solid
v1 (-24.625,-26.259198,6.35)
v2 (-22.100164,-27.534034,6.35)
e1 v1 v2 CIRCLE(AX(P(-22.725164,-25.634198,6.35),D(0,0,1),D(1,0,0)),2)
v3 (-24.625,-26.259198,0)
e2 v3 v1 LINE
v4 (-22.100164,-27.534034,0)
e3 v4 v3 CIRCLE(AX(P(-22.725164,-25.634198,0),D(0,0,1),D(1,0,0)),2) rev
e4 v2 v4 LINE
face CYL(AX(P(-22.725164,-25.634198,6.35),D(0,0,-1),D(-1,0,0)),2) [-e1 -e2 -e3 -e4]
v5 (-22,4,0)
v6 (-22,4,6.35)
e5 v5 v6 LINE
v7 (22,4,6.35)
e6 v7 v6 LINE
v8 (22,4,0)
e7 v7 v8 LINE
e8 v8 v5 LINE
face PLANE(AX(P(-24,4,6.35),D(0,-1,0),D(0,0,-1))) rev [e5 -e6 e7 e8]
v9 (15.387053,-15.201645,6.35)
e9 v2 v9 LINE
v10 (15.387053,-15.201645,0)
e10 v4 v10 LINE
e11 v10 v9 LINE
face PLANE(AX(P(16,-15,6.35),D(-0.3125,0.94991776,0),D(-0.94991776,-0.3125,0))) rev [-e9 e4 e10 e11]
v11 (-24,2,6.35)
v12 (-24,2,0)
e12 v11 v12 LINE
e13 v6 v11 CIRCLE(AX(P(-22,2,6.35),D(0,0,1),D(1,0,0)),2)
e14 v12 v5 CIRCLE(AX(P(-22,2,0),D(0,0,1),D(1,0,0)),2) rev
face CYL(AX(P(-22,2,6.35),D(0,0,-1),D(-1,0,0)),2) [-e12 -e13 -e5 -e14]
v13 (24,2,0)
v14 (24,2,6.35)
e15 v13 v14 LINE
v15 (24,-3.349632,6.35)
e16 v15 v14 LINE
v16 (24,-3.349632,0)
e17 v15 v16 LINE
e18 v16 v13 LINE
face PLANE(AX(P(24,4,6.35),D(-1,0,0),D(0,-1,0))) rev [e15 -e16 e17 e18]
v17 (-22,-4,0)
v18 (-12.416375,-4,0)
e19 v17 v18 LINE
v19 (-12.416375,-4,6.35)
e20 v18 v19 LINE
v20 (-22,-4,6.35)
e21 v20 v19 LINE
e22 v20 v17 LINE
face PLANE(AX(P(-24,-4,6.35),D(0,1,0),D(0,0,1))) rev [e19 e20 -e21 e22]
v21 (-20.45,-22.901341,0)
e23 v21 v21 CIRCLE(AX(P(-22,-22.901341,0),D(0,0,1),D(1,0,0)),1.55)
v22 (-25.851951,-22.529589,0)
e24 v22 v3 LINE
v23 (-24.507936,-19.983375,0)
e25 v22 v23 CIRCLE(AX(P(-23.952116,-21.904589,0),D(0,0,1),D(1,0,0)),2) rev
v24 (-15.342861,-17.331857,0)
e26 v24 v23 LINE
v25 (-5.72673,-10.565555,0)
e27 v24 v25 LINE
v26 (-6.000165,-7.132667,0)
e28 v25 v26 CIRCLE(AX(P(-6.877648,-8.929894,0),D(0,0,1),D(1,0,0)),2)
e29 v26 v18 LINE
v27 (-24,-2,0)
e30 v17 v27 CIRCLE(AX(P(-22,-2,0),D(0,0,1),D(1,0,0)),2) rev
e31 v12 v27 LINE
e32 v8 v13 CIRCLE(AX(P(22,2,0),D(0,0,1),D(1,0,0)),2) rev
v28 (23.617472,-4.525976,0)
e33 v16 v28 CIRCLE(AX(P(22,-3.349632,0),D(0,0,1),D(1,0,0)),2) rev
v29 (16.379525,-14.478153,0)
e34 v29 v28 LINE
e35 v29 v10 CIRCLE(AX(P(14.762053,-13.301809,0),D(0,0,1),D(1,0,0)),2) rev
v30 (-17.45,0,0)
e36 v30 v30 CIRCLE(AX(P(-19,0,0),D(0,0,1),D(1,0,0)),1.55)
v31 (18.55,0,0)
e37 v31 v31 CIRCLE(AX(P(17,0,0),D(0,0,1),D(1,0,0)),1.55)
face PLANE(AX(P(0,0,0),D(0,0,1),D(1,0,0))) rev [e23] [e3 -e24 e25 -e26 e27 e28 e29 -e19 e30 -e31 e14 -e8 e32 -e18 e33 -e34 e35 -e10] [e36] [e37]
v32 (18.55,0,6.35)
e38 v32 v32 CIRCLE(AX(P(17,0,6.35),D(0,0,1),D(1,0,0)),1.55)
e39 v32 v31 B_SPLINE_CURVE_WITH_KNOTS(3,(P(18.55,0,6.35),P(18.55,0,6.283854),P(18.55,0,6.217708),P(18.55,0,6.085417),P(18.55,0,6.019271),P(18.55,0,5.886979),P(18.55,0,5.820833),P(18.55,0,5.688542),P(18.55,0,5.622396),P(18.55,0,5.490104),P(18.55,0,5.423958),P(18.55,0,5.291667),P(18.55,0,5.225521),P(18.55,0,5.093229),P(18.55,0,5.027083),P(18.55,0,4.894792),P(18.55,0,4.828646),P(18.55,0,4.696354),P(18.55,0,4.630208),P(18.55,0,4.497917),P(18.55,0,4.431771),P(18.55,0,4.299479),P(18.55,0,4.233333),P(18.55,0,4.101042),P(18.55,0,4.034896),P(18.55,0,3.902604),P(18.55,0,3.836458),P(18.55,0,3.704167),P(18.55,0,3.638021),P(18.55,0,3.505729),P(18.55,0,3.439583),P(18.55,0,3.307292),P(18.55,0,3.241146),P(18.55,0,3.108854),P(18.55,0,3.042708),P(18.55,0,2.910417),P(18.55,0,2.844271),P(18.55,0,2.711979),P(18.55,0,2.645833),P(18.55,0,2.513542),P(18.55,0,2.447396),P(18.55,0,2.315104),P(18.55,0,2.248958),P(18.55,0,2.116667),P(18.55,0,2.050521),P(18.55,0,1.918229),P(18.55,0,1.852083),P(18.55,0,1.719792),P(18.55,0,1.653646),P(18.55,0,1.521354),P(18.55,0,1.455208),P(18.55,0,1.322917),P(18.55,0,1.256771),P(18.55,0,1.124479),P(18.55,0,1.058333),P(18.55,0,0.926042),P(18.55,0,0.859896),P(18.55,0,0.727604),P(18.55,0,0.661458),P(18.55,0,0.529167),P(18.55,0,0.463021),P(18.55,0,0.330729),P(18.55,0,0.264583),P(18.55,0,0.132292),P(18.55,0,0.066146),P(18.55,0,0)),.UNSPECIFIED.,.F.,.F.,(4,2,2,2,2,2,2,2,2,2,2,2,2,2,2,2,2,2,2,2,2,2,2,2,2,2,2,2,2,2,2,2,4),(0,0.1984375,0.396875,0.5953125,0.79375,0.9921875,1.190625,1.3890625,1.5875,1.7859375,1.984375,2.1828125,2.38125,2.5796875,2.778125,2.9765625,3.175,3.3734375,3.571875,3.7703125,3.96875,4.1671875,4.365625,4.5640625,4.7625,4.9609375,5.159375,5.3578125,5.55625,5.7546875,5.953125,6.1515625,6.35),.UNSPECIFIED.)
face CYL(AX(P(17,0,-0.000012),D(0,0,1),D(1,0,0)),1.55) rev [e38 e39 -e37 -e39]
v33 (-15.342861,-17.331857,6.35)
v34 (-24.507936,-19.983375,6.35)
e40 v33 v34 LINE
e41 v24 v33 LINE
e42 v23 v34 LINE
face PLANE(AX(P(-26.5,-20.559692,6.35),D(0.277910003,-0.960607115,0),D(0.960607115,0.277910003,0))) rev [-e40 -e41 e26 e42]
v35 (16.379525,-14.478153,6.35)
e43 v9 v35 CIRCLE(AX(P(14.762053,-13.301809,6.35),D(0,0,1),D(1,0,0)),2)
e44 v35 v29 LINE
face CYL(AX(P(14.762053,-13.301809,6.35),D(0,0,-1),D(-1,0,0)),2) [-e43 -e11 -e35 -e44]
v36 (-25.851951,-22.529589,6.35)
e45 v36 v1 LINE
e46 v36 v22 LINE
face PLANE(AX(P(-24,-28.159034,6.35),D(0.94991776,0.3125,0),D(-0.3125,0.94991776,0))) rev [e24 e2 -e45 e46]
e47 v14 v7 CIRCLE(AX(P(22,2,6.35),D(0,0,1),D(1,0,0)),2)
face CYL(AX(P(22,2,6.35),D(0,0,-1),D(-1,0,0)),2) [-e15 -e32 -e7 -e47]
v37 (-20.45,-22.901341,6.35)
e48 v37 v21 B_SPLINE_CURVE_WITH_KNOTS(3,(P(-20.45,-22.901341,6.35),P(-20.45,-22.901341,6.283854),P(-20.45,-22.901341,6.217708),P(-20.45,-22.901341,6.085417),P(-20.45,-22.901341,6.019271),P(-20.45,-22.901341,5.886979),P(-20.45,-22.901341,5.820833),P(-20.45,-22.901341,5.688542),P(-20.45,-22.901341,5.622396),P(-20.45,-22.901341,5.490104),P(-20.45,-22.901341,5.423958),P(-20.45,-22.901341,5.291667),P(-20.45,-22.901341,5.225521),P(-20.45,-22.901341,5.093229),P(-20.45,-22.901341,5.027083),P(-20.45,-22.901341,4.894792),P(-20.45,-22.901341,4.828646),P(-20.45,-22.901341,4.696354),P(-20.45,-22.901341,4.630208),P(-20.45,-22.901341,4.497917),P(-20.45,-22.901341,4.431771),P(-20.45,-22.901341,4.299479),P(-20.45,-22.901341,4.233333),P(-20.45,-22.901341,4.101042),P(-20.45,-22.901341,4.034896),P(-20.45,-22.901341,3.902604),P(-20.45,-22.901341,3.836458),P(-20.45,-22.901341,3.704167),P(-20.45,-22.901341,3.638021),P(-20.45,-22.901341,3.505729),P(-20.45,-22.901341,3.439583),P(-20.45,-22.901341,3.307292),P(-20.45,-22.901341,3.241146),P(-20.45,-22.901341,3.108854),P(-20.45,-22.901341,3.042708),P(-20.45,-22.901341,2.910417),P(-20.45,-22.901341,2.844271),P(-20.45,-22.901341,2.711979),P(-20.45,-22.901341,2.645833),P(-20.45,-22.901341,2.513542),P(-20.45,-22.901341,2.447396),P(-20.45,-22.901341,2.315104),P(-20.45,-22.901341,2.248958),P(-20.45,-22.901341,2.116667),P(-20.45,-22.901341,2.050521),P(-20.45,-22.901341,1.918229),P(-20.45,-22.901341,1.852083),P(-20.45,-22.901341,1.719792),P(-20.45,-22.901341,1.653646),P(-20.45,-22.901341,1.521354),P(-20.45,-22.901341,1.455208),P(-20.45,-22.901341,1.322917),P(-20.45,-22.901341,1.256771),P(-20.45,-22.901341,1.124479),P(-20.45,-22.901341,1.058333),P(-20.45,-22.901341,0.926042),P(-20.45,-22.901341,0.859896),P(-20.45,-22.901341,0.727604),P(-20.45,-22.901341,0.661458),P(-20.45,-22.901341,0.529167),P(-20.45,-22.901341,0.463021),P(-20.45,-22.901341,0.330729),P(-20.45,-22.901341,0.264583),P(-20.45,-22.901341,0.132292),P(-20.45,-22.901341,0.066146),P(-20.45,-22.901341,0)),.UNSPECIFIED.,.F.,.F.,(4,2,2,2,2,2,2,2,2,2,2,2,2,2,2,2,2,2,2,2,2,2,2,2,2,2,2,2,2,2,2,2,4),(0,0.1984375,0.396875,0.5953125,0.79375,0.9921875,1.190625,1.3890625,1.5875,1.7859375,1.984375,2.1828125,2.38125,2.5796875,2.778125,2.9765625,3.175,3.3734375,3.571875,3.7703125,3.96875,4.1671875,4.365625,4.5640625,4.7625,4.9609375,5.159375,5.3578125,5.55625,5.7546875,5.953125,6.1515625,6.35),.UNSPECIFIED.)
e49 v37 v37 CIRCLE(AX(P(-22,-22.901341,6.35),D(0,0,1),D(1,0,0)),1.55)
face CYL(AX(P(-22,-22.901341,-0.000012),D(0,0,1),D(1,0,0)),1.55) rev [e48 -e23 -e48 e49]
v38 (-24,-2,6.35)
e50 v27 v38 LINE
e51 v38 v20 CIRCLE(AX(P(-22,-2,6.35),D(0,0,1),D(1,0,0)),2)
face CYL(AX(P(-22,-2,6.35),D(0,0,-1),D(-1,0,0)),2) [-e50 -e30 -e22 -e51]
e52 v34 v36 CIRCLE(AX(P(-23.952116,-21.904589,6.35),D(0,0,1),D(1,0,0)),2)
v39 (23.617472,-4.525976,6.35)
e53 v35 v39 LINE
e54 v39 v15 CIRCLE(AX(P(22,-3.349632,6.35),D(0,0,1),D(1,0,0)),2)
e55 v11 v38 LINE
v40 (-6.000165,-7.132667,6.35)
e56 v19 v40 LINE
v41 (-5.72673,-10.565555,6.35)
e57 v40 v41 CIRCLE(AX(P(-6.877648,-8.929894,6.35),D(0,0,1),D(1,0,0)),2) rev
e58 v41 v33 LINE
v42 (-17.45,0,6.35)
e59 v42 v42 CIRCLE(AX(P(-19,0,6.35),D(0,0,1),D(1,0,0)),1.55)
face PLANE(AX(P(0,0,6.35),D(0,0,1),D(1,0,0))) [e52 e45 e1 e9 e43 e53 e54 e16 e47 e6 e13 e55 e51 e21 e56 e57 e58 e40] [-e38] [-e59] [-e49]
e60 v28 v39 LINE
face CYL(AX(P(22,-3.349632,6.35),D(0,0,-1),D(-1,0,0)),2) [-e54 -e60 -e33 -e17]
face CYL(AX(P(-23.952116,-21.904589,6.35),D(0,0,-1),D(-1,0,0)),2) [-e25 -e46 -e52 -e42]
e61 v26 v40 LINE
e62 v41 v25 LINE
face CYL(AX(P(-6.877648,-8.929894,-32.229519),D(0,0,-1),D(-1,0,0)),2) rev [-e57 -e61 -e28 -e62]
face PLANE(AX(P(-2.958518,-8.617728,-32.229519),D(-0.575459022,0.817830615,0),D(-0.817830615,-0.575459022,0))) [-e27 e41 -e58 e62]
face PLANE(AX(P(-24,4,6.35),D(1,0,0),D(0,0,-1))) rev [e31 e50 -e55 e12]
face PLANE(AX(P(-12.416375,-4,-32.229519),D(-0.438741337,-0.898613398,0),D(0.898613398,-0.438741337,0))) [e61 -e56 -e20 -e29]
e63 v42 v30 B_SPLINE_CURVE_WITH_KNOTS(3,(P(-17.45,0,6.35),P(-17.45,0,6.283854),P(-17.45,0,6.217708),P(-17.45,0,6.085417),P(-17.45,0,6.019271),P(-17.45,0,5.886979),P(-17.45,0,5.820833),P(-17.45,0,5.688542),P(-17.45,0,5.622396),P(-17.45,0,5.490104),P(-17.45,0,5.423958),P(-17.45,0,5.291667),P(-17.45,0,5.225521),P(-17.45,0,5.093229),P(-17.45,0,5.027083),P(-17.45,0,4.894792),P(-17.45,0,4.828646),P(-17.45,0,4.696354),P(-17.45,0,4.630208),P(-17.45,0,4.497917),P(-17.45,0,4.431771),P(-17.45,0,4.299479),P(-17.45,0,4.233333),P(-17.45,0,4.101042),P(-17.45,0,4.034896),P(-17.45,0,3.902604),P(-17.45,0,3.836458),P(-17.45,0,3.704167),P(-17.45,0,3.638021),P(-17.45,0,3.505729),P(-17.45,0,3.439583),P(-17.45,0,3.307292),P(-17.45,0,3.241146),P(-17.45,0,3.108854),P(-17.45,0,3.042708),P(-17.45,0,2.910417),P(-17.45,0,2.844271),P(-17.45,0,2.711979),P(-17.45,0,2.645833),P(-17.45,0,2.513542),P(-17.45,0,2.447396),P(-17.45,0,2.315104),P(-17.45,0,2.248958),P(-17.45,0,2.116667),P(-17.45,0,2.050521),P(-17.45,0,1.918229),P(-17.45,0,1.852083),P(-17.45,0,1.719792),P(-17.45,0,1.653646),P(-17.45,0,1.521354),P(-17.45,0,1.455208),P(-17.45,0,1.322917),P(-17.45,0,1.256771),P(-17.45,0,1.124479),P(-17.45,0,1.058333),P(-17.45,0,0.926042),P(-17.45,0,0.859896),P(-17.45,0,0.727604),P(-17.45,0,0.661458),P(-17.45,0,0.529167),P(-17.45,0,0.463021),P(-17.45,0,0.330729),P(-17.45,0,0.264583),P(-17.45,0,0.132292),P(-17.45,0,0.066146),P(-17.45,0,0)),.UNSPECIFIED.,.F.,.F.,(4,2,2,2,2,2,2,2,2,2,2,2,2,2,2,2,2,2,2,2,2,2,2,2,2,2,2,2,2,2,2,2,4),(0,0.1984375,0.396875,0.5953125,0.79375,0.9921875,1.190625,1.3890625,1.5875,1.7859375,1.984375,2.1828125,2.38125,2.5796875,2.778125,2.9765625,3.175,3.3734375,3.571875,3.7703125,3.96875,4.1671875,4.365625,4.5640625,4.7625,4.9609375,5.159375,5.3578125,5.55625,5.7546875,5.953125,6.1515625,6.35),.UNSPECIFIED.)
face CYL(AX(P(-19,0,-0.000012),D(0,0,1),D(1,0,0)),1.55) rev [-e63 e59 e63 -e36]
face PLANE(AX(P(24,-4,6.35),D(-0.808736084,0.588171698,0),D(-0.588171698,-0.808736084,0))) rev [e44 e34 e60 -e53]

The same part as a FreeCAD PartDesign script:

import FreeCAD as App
import Part
import Sketcher


def edges_at(feature, points):
    """Names of the edges that pass closest to the given points."""
    edges = feature.Shape.Edges
    near = lambda p: min(range(len(edges)), key=lambda i: edges[i].distToShape(Part.Vertex(*p))[0])
    return sorted({f"Edge{near(p) + 1}" for p in points})

doc = App.newDocument("Part")
body = doc.addObject("PartDesign::Body", "Body")

sketch1 = body.newObject("Sketcher::SketchObject", "Sketch")
sketch1.AttachmentSupport = (doc.getObject("XY_Plane"), [""])
sketch1.MapMode = "FlatFace"
sketch1.addGeometry([
    Part.LineSegment(App.Vector(16, -15, 0), App.Vector(24, -4, 0)),
    Part.LineSegment(App.Vector(24, -4, 0), App.Vector(24, 4, 0)),
    Part.LineSegment(App.Vector(24, 4, 0), App.Vector(-24, 4, 0)),
    Part.LineSegment(App.Vector(-24, 4, 0), App.Vector(-24, -4, 0)),
    Part.LineSegment(App.Vector(-24, -4, 0), App.Vector(14, -4, 0)),
    Part.LineSegment(App.Vector(14, -4, 0), App.Vector(10, -10, 0)),
    Part.LineSegment(App.Vector(10, -10, 0), App.Vector(-26.5, -20.559692, 0)),
    Part.LineSegment(App.Vector(-26.5, -20.559692, 0), App.Vector(-24, -28.159034, 0)),
    Part.LineSegment(App.Vector(-24, -28.159034, 0), App.Vector(16, -15, 0)),
], False)
sketch1.addConstraint([
    Sketcher.Constraint("Coincident", 0, 2, 1, 1),
    Sketcher.Constraint("Coincident", 1, 2, 2, 1),
    Sketcher.Constraint("Coincident", 2, 2, 3, 1),
    Sketcher.Constraint("Coincident", 3, 2, 4, 1),
    Sketcher.Constraint("Coincident", 4, 2, 5, 1),
    Sketcher.Constraint("Coincident", 5, 2, 6, 1),
    Sketcher.Constraint("Coincident", 6, 2, 7, 1),
    Sketcher.Constraint("Coincident", 7, 2, 8, 1),
    Sketcher.Constraint("Coincident", 8, 2, 0, 1),
    Sketcher.Constraint("Vertical", 1),
    Sketcher.Constraint("Horizontal", 2),
    Sketcher.Constraint("Vertical", 3),
    Sketcher.Constraint("Horizontal", 4),
    Sketcher.Constraint("Symmetric", 0, 2, 2, 2, -1, 1),
    Sketcher.Constraint("Perpendicular", 7, 8),
    Sketcher.Constraint("Horizontal", 0, 2, 3, 2),
    Sketcher.Constraint("Vertical", 3, 2, 7, 2),
    Sketcher.Constraint("DistanceX", 2, 2, 2, 1, 48.0),
    Sketcher.Constraint("DistanceX", 4, 1, 4, 2, 38.0),
    Sketcher.Constraint("DistanceY", 1, 1, 1, 2, 8.0),
    Sketcher.Constraint("Distance", 7, 8.0),
    Sketcher.Constraint("DistanceX", -1, 1, 5, 2, 10.0),
    Sketcher.Constraint("DistanceY", 5, 2, -1, 1, 10.0),
    Sketcher.Constraint("DistanceX", -1, 1, 8, 2, 16.0),
    Sketcher.Constraint("DistanceY", 8, 2, -1, 1, 15.0),
    Sketcher.Constraint("DistanceX", 6, 2, -1, 1, 26.5),
])
pad1 = body.newObject("PartDesign::Pad", "Pad")
pad1.Profile = sketch1
pad1.Length = 6.35

sketch2 = body.newObject("Sketcher::SketchObject", "Sketch001")
sketch2.AttachmentSupport = (doc.getObject("XY_Plane"), [""])
sketch2.MapMode = "FlatFace"
sketch2.addGeometry([
    Part.Circle(App.Vector(-19, 0, 0), App.Vector(0, 0, 1), 1.55),
    Part.Circle(App.Vector(17, 0, 0), App.Vector(0, 0, 1), 1.55),
    Part.Circle(App.Vector(-22, -22.901341, 0), App.Vector(0, 0, 1), 1.55),
], False)
sketch2.addConstraint([
    Sketcher.Constraint("Equal", 0, 1),
    Sketcher.Constraint("Equal", 1, 2),
    Sketcher.Constraint("PointOnObject", 0, 3, -1),
    Sketcher.Constraint("PointOnObject", 1, 3, -1),
    Sketcher.Constraint("Diameter", 0, 3.1),
    Sketcher.Constraint("DistanceX", 0, 3, -1, 1, 19.0),
    Sketcher.Constraint("DistanceX", -1, 1, 1, 3, 17.0),
    Sketcher.Constraint("DistanceX", 2, 3, -1, 1, 22.0),
    Sketcher.Constraint("DistanceY", 2, 3, -1, 1, 22.901341),
])
pocket1 = body.newObject("PartDesign::Pocket", "Pocket")
pocket1.Profile = sketch2
pocket1.Type = "ThroughAll"
pocket1.Midplane = True

sketch3 = body.newObject("Sketcher::SketchObject", "Sketch002")
sketch3.AttachmentSupport = (doc.getObject("XY_Plane"), [""])
sketch3.MapMode = "FlatFace"
sketch3.AttachmentOffset = App.Placement(App.Vector(0, 0, 6.35), App.Rotation())
sketch3.addGeometry([
    Part.LineSegment(App.Vector(14, -4, 0), App.Vector(-12.416375, -4, 0)),
    Part.LineSegment(App.Vector(-12.416375, -4, 0), App.Vector(-2.958518, -8.617728, 0)),
    Part.LineSegment(App.Vector(-2.958518, -8.617728, 0), App.Vector(-15.342861, -17.331857, 0)),
    Part.LineSegment(App.Vector(-15.342861, -17.331857, 0), App.Vector(10, -10, 0)),
    Part.LineSegment(App.Vector(10, -10, 0), App.Vector(14, -4, 0)),
], False)
sketch3.addConstraint([
    Sketcher.Constraint("Coincident", 0, 2, 1, 1),
    Sketcher.Constraint("Coincident", 1, 2, 2, 1),
    Sketcher.Constraint("Coincident", 2, 2, 3, 1),
    Sketcher.Constraint("Coincident", 3, 2, 4, 1),
    Sketcher.Constraint("Coincident", 4, 2, 0, 1),
    Sketcher.Constraint("Horizontal", 0),
    Sketcher.Constraint("DistanceY", 0, 2, -1, 1, 4.0),
    Sketcher.Constraint("DistanceX", -1, 1, 3, 2, 10.0),
    Sketcher.Constraint("DistanceY", 3, 2, -1, 1, 10.0),
    Sketcher.Constraint("DistanceX", -1, 1, 4, 2, 14.0),
    Sketcher.Constraint("Distance", 2, 15.142919),
    Sketcher.Constraint("Distance", 3, 26.382129),
    Sketcher.Constraint("DistanceX", 0, 2, 0, 1, 26.416375),
    Sketcher.Constraint("DistanceX", 1, 2, -1, 1, 2.958518),
    Sketcher.Constraint("DistanceY", 1, 2, -1, 1, 8.617728),
])
pad2 = body.newObject("PartDesign::Pad", "Pad001")
pad2.Profile = sketch3
pad2.Length = 6.35
pad2.Reversed = True
doc.recompute()

fillet = body.newObject("PartDesign::Fillet", "Fillet")
fillet.Base = (pad2, edges_at(pad2, [
    (24, -4, 3.175),
    (16, -15, 3.175),
    (-24, -28.159, 3.175),
    (-26.5, -20.56, 3.175),
    (-24, -4, 3.175),
    (-24, 4, 3.175),
    (24, 4, 3.175),
    (-2.959, -8.618, 3.175),
]))
fillet.Radius = 2

doc.recompute()
